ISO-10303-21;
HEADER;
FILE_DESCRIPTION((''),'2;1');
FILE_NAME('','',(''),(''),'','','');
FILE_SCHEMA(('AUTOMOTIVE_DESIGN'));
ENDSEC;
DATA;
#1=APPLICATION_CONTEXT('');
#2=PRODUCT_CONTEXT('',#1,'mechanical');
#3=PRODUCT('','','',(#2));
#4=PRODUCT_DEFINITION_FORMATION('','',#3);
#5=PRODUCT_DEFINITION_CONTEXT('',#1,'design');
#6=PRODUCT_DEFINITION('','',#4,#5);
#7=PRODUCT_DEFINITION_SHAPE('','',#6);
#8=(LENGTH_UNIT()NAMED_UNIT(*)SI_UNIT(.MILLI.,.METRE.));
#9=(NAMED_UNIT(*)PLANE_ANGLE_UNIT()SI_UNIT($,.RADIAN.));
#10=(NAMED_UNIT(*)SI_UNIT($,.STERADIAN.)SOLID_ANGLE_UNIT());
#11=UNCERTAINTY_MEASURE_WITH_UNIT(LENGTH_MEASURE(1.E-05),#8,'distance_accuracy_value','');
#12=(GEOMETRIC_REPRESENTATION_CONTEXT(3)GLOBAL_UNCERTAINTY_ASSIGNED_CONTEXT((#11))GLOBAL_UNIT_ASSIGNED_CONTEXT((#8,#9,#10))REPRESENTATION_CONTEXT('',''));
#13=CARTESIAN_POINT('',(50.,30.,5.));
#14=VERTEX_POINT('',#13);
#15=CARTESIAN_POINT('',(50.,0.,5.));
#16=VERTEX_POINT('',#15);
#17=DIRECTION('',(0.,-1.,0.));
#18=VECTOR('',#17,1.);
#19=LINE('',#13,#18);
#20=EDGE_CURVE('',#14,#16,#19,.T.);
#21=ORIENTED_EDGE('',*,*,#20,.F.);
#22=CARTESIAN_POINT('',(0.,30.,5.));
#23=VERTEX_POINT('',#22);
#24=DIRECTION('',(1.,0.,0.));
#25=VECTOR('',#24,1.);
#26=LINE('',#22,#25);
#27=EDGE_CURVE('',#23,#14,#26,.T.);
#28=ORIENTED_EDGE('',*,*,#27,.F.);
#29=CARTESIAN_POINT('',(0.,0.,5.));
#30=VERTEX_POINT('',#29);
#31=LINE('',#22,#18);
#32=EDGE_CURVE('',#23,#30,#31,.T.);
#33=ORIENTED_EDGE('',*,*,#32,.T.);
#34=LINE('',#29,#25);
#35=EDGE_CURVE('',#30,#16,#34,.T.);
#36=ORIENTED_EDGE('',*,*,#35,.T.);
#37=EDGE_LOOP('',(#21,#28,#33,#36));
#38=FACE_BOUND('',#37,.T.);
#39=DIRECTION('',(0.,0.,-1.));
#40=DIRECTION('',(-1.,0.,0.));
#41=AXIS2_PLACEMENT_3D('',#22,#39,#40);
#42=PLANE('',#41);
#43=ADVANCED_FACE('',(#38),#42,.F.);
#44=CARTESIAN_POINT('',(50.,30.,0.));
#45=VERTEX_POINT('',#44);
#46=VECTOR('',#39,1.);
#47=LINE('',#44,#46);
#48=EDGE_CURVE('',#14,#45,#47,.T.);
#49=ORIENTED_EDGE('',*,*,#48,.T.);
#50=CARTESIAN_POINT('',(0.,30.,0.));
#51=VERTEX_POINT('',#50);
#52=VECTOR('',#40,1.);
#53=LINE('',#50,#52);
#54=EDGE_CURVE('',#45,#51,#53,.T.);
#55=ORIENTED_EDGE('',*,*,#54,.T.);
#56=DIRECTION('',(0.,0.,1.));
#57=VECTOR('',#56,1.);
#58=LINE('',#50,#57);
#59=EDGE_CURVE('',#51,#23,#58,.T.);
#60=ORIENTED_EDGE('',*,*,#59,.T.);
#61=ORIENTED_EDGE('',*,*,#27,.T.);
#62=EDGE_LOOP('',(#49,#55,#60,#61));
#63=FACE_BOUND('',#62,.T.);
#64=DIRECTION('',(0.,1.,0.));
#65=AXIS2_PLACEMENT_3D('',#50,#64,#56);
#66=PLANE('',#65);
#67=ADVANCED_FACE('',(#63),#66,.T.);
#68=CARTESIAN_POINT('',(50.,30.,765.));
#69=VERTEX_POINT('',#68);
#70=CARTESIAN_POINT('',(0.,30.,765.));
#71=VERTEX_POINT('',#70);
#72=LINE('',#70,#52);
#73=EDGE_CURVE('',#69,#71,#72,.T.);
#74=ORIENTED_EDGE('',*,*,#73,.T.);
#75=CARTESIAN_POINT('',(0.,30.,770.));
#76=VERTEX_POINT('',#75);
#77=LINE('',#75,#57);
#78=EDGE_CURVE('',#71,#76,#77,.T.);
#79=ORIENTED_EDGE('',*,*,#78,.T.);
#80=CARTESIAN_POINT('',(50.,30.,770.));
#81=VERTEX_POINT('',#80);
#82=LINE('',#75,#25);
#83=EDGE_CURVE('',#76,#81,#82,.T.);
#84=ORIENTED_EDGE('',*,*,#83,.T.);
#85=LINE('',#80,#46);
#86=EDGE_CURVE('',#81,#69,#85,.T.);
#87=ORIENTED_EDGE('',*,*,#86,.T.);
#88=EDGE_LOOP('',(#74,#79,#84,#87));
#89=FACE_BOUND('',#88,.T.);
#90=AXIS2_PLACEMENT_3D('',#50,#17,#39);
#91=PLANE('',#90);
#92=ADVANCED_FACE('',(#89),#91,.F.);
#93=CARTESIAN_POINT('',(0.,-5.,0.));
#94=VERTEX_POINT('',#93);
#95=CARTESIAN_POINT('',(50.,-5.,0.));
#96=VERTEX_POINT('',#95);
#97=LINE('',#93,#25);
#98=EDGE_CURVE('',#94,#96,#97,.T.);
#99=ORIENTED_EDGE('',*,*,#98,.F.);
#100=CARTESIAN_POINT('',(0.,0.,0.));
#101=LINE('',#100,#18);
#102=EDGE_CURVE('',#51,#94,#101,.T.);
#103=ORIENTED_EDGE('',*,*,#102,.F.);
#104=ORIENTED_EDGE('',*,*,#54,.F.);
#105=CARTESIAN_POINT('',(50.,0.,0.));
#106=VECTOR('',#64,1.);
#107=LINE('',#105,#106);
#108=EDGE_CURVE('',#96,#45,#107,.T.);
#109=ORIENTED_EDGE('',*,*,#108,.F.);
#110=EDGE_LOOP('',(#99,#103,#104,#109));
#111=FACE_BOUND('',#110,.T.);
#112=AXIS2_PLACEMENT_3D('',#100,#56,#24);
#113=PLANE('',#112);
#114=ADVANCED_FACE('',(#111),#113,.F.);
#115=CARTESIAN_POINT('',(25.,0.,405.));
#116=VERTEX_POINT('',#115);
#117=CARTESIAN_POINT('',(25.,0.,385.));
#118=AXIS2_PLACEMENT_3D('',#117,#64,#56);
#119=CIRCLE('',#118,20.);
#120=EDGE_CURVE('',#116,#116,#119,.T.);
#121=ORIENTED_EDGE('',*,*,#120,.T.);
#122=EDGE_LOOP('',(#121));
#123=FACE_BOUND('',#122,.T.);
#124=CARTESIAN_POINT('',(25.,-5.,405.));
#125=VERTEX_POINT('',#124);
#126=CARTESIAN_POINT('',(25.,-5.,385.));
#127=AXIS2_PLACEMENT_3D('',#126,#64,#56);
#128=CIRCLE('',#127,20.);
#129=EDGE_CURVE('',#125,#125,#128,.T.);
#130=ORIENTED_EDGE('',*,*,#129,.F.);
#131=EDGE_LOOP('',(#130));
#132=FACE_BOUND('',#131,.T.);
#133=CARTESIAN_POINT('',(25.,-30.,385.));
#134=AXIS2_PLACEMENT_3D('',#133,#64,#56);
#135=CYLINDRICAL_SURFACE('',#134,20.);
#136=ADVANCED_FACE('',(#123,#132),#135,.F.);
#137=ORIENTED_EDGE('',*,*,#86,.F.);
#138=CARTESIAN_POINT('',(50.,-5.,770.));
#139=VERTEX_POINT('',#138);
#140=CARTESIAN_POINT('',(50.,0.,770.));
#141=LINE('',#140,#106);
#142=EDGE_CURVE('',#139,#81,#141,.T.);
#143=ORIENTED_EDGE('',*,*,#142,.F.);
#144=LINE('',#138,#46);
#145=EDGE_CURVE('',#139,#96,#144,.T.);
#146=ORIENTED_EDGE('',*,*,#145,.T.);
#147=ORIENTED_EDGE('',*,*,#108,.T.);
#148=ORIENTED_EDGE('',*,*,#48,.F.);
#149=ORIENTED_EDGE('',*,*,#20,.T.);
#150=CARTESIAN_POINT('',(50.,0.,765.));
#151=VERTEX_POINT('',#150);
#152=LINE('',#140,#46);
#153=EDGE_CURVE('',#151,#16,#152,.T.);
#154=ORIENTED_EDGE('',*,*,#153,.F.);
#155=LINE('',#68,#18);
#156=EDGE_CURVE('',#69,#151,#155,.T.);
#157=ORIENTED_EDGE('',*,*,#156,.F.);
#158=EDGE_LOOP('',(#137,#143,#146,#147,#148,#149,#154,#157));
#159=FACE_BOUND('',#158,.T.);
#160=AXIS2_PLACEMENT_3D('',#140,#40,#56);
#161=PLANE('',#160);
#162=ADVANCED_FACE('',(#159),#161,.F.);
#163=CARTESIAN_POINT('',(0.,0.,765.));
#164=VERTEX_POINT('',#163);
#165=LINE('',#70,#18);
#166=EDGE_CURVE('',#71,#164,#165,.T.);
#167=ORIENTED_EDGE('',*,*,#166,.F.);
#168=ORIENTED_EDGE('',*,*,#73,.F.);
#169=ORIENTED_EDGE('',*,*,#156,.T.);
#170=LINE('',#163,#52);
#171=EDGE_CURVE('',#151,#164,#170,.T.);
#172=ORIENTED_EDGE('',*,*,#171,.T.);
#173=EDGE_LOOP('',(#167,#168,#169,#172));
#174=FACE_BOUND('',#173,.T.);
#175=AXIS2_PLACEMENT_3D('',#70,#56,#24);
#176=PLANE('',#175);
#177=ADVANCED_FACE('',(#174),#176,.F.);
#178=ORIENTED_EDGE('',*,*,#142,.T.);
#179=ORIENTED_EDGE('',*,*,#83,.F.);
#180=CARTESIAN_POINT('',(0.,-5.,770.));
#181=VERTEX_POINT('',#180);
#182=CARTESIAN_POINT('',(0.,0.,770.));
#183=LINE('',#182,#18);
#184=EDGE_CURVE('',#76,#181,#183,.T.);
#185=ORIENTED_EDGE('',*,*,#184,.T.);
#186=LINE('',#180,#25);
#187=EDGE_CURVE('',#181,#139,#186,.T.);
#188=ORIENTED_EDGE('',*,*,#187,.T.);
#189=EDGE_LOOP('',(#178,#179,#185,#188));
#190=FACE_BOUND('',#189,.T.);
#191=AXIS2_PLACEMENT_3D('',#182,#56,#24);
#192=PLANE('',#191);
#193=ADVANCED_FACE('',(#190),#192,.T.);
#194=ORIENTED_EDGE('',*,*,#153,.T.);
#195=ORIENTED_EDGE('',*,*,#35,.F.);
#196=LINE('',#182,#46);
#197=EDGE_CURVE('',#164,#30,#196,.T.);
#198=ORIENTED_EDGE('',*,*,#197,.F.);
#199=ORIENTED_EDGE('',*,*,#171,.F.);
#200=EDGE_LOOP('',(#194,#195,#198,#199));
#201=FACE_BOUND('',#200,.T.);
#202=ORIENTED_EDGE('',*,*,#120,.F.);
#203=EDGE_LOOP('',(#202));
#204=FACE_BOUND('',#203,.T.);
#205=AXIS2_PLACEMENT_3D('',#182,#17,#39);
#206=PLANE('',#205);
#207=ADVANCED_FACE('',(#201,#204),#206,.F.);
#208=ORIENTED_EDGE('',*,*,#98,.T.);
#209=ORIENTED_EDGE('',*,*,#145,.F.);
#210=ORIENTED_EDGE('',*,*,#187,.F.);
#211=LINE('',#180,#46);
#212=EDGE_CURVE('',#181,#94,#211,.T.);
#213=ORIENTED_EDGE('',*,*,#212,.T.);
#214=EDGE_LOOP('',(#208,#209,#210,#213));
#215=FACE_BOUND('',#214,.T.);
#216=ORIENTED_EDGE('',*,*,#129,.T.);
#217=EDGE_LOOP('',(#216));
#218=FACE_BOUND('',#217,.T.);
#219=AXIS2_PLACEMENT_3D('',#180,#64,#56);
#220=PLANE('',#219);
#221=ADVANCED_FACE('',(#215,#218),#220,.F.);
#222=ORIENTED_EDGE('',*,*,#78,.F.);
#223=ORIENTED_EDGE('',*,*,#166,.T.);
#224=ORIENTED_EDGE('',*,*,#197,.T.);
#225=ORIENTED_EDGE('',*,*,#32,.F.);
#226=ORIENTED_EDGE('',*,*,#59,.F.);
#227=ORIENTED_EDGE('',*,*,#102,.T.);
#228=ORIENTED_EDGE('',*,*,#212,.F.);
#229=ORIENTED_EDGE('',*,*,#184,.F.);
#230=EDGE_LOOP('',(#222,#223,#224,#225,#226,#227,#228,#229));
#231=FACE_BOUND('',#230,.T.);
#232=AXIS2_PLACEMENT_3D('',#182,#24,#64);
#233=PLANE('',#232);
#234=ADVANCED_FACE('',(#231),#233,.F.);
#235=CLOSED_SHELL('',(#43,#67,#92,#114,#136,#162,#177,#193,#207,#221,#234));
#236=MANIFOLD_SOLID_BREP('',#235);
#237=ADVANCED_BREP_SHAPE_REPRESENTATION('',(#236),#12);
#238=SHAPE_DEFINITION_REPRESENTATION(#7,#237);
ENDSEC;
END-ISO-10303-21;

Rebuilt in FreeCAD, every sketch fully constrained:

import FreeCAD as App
import Part
import Sketcher

V = App.Vector


def add_polygon(sketch, points):
    """Adds a closed chain of lines whose ends are joined by coincident constraints."""
    first, n = sketch.GeometryCount, len(points)
    for a, b in zip(points, points[1:] + points[:1]):
        sketch.addGeometry(Part.LineSegment(App.Vector(*a, 0), App.Vector(*b, 0)), False)
    for i in range(n):
        sketch.addConstraint(Sketcher.Constraint("Coincident", first + i, 2, first + (i + 1) % n, 1))

doc = App.newDocument("Part")
body = doc.addObject("PartDesign::Body", "Body")

# Sketch on XY plane
sketch1 = body.newObject("Sketcher::SketchObject", "Sketch")
sketch1.AttachmentSupport = (doc.getObject("XY_Plane"), [""])
sketch1.MapMode = "FlatFace"
add_polygon(sketch1, [(0, 0), (0, -5), (50, -5), (50, 0)])  # lines 0-3
sketch1.addConstraint(Sketcher.Constraint("Vertical", 0))
sketch1.addConstraint(Sketcher.Constraint("Horizontal", 1))
sketch1.addConstraint(Sketcher.Constraint("Vertical", 2))
sketch1.addConstraint(Sketcher.Constraint("Horizontal", 3))
sketch1.addConstraint(Sketcher.Constraint("Coincident", 3, 2, -1, 1))
sketch1.addConstraint(Sketcher.Constraint("DistanceX", 1, 1, 1, 2, 50.0))
sketch1.addConstraint(Sketcher.Constraint("DistanceY", 0, 2, 0, 1, 5.0))
pad1 = body.newObject("PartDesign::Pad", "Pad")
pad1.Profile = sketch1
pad1.Length = 770

# Sketch on XZ plane
sketch2 = body.newObject("Sketcher::SketchObject", "Sketch001")
sketch2.AttachmentSupport = (doc.getObject("XZ_Plane"), [""])
sketch2.MapMode = "FlatFace"
add_polygon(sketch2, [(0, 765), (0, 770), (50, 770), (50, 765)])  # lines 0-3
add_polygon(sketch2, [(0, 0), (0, 5), (50, 5), (50, 0)])  # lines 4-7
sketch2.addConstraint(Sketcher.Constraint("Vertical", 0))
sketch2.addConstraint(Sketcher.Constraint("Horizontal", 1))
sketch2.addConstraint(Sketcher.Constraint("Vertical", 2))
sketch2.addConstraint(Sketcher.Constraint("Horizontal", 3))
sketch2.addConstraint(Sketcher.Constraint("Vertical", 4))
sketch2.addConstraint(Sketcher.Constraint("Horizontal", 5))
sketch2.addConstraint(Sketcher.Constraint("Vertical", 6))
sketch2.addConstraint(Sketcher.Constraint("Horizontal", 7))
sketch2.addConstraint(Sketcher.Constraint("Coincident", 7, 2, -1, 1))
sketch2.addConstraint(Sketcher.Constraint("PointOnObject", 0, 2, -2))
sketch2.addConstraint(Sketcher.Constraint("Vertical", 2, 2, 5, 2))
sketch2.addConstraint(Sketcher.Constraint("Equal", 2, 4))
sketch2.addConstraint(Sketcher.Constraint("DistanceX", 1, 1, 1, 2, 50.0))
sketch2.addConstraint(Sketcher.Constraint("DistanceY", 0, 1, 0, 2, 5.0))
sketch2.addConstraint(Sketcher.Constraint("DistanceY", -1, 1, 0, 2, 770.0))
pad2 = body.newObject("PartDesign::Pad", "Pad001")
pad2.Profile = sketch2
pad2.Length = 30
pad2.Reversed = True

# Sketch on XZ plane
sketch3 = body.newObject("Sketcher::SketchObject", "Sketch002")
sketch3.AttachmentSupport = (doc.getObject("XZ_Plane"), [""])
sketch3.MapMode = "FlatFace"
sketch3.addGeometry(Part.Circle(V(25, 385, 0), V(0, 0, 1), 20), False)
sketch3.addConstraint(Sketcher.Constraint("Diameter", 0, 40.0))
sketch3.addConstraint(Sketcher.Constraint("DistanceX", -1, 1, 0, 3, 25.0))
sketch3.addConstraint(Sketcher.Constraint("DistanceY", -1, 1, 0, 3, 385.0))
pocket1 = body.newObject("PartDesign::Pocket", "Pocket")
pocket1.Profile = sketch3
pocket1.Length = 30
pocket1.Reversed = True

doc.recompute()
